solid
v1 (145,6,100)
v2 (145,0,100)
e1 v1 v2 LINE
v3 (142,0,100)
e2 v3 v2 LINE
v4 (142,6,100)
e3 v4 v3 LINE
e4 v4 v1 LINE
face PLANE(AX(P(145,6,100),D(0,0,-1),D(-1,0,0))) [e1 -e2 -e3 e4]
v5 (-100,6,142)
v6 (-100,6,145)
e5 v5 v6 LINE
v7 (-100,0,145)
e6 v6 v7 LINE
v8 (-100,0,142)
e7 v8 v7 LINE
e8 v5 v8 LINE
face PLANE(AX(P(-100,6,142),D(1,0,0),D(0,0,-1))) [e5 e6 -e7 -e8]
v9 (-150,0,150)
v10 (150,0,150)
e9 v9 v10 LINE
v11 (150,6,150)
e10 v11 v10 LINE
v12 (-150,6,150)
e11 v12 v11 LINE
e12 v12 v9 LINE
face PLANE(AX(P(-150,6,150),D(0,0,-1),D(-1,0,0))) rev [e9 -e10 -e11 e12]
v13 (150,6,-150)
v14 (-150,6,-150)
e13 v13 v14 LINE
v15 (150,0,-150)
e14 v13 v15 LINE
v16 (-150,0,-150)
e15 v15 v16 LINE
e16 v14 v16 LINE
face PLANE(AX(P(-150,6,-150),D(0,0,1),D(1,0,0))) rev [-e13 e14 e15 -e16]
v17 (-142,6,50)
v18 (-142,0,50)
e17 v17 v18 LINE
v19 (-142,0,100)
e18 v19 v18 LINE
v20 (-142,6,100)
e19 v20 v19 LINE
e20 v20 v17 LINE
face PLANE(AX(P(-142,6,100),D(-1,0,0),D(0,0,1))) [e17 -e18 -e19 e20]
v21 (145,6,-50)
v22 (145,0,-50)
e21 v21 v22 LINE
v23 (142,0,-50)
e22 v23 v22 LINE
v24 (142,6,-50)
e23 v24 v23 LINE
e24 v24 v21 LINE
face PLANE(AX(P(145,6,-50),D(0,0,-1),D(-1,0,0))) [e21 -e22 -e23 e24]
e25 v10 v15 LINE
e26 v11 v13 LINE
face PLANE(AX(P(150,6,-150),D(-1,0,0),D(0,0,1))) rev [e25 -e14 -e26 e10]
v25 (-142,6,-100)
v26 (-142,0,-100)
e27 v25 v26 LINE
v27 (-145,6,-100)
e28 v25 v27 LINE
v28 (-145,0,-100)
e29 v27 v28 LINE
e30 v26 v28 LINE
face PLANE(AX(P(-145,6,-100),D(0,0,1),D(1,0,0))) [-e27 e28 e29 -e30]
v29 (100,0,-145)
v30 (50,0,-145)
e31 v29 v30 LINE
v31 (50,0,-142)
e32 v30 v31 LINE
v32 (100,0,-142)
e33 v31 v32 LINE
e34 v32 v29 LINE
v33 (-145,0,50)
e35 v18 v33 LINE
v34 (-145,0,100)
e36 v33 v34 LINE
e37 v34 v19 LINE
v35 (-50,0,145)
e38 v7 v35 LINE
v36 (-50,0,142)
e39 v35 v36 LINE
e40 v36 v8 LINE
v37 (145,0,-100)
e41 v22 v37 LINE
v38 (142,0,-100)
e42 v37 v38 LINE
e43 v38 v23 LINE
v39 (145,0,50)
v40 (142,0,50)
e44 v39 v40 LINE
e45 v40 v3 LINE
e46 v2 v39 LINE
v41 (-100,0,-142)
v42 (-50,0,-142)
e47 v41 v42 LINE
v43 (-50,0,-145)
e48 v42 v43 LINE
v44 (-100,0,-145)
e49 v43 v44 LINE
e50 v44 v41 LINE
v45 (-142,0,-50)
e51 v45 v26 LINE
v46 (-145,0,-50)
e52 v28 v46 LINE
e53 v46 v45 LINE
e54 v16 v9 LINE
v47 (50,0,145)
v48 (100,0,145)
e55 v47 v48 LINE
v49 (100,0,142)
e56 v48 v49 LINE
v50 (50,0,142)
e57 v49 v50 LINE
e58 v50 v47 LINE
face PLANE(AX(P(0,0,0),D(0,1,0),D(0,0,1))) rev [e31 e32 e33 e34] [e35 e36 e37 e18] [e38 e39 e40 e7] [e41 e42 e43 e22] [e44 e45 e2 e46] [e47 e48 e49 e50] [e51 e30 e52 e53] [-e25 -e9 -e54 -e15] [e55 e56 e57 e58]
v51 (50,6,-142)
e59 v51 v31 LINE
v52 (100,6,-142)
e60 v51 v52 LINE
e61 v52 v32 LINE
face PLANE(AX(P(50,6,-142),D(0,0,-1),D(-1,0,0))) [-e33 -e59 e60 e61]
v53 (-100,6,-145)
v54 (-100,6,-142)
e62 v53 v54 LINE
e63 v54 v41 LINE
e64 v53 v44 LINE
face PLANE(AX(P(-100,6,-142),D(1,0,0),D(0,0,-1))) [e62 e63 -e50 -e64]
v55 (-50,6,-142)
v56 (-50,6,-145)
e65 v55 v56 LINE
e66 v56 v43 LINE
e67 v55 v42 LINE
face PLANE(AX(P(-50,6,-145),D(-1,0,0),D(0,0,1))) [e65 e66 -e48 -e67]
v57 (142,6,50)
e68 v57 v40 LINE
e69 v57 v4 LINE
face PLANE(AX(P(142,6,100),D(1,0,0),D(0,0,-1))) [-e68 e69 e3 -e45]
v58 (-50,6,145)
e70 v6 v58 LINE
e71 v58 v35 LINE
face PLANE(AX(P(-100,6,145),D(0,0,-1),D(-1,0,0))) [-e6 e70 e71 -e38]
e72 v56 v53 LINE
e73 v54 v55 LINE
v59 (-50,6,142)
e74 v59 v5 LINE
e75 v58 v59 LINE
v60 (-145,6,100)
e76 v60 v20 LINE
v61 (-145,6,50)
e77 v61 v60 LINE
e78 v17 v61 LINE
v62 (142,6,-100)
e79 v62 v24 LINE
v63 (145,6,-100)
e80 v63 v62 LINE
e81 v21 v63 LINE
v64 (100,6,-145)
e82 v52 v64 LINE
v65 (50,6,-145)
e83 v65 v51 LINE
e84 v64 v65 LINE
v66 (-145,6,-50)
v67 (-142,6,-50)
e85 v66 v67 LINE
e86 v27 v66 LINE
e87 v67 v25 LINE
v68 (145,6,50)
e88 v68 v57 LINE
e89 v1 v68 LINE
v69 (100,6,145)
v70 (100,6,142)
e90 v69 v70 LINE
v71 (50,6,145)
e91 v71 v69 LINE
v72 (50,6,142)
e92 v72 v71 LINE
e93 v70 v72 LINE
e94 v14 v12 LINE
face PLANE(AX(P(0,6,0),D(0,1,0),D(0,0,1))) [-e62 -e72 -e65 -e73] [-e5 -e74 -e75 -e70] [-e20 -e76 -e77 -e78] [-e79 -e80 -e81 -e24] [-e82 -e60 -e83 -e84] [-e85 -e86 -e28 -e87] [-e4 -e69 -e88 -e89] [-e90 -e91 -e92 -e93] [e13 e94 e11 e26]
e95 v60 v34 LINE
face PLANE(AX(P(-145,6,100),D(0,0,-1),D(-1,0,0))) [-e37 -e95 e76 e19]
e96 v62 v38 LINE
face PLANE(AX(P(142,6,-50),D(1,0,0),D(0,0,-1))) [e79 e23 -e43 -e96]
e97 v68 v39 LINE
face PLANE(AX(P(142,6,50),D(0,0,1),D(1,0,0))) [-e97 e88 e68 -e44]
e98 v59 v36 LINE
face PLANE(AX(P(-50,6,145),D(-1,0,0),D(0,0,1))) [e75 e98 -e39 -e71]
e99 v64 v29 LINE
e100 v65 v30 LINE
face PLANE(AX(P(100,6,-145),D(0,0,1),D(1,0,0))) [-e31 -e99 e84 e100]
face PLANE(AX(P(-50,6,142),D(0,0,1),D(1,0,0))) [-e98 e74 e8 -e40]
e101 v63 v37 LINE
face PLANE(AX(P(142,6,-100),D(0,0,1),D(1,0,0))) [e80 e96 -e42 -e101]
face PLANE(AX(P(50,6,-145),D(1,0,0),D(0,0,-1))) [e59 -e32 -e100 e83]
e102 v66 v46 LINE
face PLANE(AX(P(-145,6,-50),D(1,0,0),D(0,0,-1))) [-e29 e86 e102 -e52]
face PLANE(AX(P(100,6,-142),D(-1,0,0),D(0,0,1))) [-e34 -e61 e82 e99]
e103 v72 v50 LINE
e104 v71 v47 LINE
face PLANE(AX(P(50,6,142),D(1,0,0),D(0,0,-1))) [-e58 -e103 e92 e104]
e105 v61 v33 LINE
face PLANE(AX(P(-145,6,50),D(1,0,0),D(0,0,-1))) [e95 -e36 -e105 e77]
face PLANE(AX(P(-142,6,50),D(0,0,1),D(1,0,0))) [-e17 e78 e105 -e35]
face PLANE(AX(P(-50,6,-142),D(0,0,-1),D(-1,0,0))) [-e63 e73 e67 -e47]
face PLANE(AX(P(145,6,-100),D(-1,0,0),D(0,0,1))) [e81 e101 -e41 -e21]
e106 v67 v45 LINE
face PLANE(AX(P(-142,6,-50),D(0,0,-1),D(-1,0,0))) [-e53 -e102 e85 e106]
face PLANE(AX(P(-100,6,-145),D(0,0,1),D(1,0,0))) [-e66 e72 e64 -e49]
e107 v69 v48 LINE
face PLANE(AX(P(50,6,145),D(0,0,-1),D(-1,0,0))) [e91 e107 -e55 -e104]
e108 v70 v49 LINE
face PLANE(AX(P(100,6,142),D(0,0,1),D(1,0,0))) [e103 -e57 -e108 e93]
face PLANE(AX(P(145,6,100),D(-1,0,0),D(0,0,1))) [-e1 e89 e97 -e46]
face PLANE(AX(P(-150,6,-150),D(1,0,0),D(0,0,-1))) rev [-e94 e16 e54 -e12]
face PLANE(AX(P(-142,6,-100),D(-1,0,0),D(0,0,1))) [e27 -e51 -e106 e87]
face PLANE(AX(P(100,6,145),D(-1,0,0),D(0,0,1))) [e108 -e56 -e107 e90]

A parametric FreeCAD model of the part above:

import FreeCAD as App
import Part
import Sketcher
from FreeCAD import Vector
Q = App.Units.Quantity


def add_polygon(sketch, points):
    """Adds a closed chain of lines whose ends are joined by coincident constraints."""
    first, n = sketch.GeometryCount, len(points)
    for a, b in zip(points, points[1:] + points[:1]):
        sketch.addGeometry(Part.LineSegment(App.Vector(*a, 0), App.Vector(*b, 0)), False)
    for i in range(n):
        sketch.addConstraint(Sketcher.Constraint("Coincident", first + i, 2, first + (i + 1) % n, 1))

doc = App.newDocument("Part")
params = doc.addObject("Spreadsheet::Sheet", "Params")
for row, (alias, value) in enumerate([
    ("sketch1_width", "300 mm"),
    ("sketch1_width2", "50 mm"),
    ("sketch1_width3", "3 mm"),
    ("pad1_length", "6 mm"),
], start=1):
    params.set(f"A{row}", alias)
    params.set(f"B{row}", "=" + value)
    params.setAlias(f"B{row}", alias)

body = doc.addObject("PartDesign::Body", "Body")

# Sketch on XZ plane
sketch1 = body.newObject("Sketcher::SketchObject", "Sketch")
sketch1.AttachmentSupport = (doc.getObject("XZ_Plane"), [""])
sketch1.MapMode = "FlatFace"
add_polygon(sketch1, [(-150, -150), (-150, 150), (150, 150), (150, -150)])  # lines 0-3
add_polygon(sketch1, [(-50, 145), (-100, 145), (-100, 142), (-50, 142)])  # lines 4-7
add_polygon(sketch1, [(-142, 100), (-145, 100), (-145, 50), (-142, 50)])  # lines 8-11
add_polygon(sketch1, [(100, 145), (50, 145), (50, 142), (100, 142)])  # lines 12-15
add_polygon(sketch1, [(145, 100), (142, 100), (142, 50), (145, 50)])  # lines 16-19
add_polygon(sketch1, [(-142, -50), (-145, -50), (-145, -100), (-142, -100)])  # lines 20-23
add_polygon(sketch1, [(-50, -142), (-100, -142), (-100, -145), (-50, -145)])  # lines 24-27
add_polygon(sketch1, [(145, -50), (142, -50), (142, -100), (145, -100)])  # lines 28-31
add_polygon(sketch1, [(100, -142), (50, -142), (50, -145), (100, -145)])  # lines 32-35
sketch1.addConstraint(Sketcher.Constraint("Vertical", 0))
sketch1.addConstraint(Sketcher.Constraint("Horizontal", 1))
sketch1.addConstraint(Sketcher.Constraint("Vertical", 2))
sketch1.addConstraint(Sketcher.Constraint("Horizontal", 3))
sketch1.addConstraint(Sketcher.Constraint("Horizontal", 4))
sketch1.addConstraint(Sketcher.Constraint("Vertical", 5))
sketch1.addConstraint(Sketcher.Constraint("Horizontal", 6))
sketch1.addConstraint(Sketcher.Constraint("Vertical", 7))
sketch1.addConstraint(Sketcher.Constraint("Horizontal", 8))
sketch1.addConstraint(Sketcher.Constraint("Vertical", 9))
sketch1.addConstraint(Sketcher.Constraint("Horizontal", 10))
sketch1.addConstraint(Sketcher.Constraint("Vertical", 11))
sketch1.addConstraint(Sketcher.Constraint("Horizontal", 12))
sketch1.addConstraint(Sketcher.Constraint("Vertical", 13))
sketch1.addConstraint(Sketcher.Constraint("Horizontal", 14))
sketch1.addConstraint(Sketcher.Constraint("Vertical", 15))
sketch1.addConstraint(Sketcher.Constraint("Horizontal", 16))
sketch1.addConstraint(Sketcher.Constraint("Vertical", 17))
sketch1.addConstraint(Sketcher.Constraint("Horizontal", 18))
sketch1.addConstraint(Sketcher.Constraint("Vertical", 19))
sketch1.addConstraint(Sketcher.Constraint("Horizontal", 20))
sketch1.addConstraint(Sketcher.Constraint("Vertical", 21))
sketch1.addConstraint(Sketcher.Constraint("Horizontal", 22))
sketch1.addConstraint(Sketcher.Constraint("Vertical", 23))
sketch1.addConstraint(Sketcher.Constraint("Horizontal", 24))
sketch1.addConstraint(Sketcher.Constraint("Vertical", 25))
sketch1.addConstraint(Sketcher.Constraint("Horizontal", 26))
sketch1.addConstraint(Sketcher.Constraint("Vertical", 27))
sketch1.addConstraint(Sketcher.Constraint("Horizontal", 28))
sketch1.addConstraint(Sketcher.Constraint("Vertical", 29))
sketch1.addConstraint(Sketcher.Constraint("Horizontal", 30))
sketch1.addConstraint(Sketcher.Constraint("Vertical", 31))
sketch1.addConstraint(Sketcher.Constraint("Horizontal", 32))
sketch1.addConstraint(Sketcher.Constraint("Vertical", 33))
sketch1.addConstraint(Sketcher.Constraint("Horizontal", 34))
sketch1.addConstraint(Sketcher.Constraint("Vertical", 35))
sketch1.addConstraint(Sketcher.Constraint("Symmetric", 0, 2, 2, 2, -1, 1))
sketch1.addConstraint(Sketcher.Constraint("Symmetric", 18, 2, 20, 2, -1, 1))
sketch1.addConstraint(Sketcher.Constraint("Symmetric", 16, 2, 22, 2, -1, 1))
sketch1.addConstraint(Sketcher.Constraint("Symmetric", 14, 2, 24, 2, -1, 1))
sketch1.addConstraint(Sketcher.Constraint("Symmetric", 12, 2, 26, 2, -1, 1))
sketch1.addConstraint(Sketcher.Constraint("Symmetric", 10, 2, 28, 2, -1, 1))
sketch1.addConstraint(Sketcher.Constraint("Symmetric", 8, 2, 30, 2, -1, 1))
sketch1.addConstraint(Sketcher.Constraint("Symmetric", 6, 2, 32, 2, -1, 1))
sketch1.addConstraint(Sketcher.Constraint("Symmetric", 4, 2, 34, 2, -1, 1))
sketch1.addConstraint(Sketcher.Constraint("Symmetric", 7, 2, 12, 2, -2))
sketch1.addConstraint(Sketcher.Constraint("Symmetric", 5, 2, 14, 2, -2))
sketch1.addConstraint(Sketcher.Constraint("Symmetric", 11, 2, 16, 2, -2))
sketch1.addConstraint(Sketcher.Constraint("Symmetric", 9, 2, 18, 2, -2))
sketch1.addConstraint(Sketcher.Constraint("Equal", 3, 0))
sketch1.addConstraint(Sketcher.Constraint("Equal", 30, 5))
sketch1.addConstraint(Sketcher.Constraint("Equal", 34, 9))
sketch1.addConstraint(Sketcher.Constraint("DistanceX", 1, 1, 1, 2, Q("300 mm")))
sketch1.addConstraint(Sketcher.Constraint("DistanceX", 4, 2, 4, 1, Q("50 mm")))
sketch1.addConstraint(Sketcher.Constraint("DistanceX", 8, 2, 8, 1, Q("3 mm")))
sketch1.addConstraint(Sketcher.Constraint("DistanceX", 4, 2, -1, 1, Q("100 mm")))
sketch1.addConstraint(Sketcher.Constraint("DistanceY", -1, 1, 4, 2, Q("145 mm")))
sketch1.addConstraint(Sketcher.Constraint("DistanceX", 8, 2, -1, 1, Q("145 mm")))
sketch1.addConstraint(Sketcher.Constraint("DistanceY", -1, 1, 8, 2, Q("100 mm")))
sketch1.setExpression("Constraints[88]", "Params.sketch1_width")
sketch1.setExpression("Constraints[89]", "Params.sketch1_width2")
sketch1.setExpression("Constraints[90]", "Params.sketch1_width3")
pad1 = body.newObject("PartDesign::Pad", "Pad")
pad1.Profile = sketch1
pad1.setExpression("Length", "Params.pad1_length")
pad1.Reversed = True

doc.recompute()
